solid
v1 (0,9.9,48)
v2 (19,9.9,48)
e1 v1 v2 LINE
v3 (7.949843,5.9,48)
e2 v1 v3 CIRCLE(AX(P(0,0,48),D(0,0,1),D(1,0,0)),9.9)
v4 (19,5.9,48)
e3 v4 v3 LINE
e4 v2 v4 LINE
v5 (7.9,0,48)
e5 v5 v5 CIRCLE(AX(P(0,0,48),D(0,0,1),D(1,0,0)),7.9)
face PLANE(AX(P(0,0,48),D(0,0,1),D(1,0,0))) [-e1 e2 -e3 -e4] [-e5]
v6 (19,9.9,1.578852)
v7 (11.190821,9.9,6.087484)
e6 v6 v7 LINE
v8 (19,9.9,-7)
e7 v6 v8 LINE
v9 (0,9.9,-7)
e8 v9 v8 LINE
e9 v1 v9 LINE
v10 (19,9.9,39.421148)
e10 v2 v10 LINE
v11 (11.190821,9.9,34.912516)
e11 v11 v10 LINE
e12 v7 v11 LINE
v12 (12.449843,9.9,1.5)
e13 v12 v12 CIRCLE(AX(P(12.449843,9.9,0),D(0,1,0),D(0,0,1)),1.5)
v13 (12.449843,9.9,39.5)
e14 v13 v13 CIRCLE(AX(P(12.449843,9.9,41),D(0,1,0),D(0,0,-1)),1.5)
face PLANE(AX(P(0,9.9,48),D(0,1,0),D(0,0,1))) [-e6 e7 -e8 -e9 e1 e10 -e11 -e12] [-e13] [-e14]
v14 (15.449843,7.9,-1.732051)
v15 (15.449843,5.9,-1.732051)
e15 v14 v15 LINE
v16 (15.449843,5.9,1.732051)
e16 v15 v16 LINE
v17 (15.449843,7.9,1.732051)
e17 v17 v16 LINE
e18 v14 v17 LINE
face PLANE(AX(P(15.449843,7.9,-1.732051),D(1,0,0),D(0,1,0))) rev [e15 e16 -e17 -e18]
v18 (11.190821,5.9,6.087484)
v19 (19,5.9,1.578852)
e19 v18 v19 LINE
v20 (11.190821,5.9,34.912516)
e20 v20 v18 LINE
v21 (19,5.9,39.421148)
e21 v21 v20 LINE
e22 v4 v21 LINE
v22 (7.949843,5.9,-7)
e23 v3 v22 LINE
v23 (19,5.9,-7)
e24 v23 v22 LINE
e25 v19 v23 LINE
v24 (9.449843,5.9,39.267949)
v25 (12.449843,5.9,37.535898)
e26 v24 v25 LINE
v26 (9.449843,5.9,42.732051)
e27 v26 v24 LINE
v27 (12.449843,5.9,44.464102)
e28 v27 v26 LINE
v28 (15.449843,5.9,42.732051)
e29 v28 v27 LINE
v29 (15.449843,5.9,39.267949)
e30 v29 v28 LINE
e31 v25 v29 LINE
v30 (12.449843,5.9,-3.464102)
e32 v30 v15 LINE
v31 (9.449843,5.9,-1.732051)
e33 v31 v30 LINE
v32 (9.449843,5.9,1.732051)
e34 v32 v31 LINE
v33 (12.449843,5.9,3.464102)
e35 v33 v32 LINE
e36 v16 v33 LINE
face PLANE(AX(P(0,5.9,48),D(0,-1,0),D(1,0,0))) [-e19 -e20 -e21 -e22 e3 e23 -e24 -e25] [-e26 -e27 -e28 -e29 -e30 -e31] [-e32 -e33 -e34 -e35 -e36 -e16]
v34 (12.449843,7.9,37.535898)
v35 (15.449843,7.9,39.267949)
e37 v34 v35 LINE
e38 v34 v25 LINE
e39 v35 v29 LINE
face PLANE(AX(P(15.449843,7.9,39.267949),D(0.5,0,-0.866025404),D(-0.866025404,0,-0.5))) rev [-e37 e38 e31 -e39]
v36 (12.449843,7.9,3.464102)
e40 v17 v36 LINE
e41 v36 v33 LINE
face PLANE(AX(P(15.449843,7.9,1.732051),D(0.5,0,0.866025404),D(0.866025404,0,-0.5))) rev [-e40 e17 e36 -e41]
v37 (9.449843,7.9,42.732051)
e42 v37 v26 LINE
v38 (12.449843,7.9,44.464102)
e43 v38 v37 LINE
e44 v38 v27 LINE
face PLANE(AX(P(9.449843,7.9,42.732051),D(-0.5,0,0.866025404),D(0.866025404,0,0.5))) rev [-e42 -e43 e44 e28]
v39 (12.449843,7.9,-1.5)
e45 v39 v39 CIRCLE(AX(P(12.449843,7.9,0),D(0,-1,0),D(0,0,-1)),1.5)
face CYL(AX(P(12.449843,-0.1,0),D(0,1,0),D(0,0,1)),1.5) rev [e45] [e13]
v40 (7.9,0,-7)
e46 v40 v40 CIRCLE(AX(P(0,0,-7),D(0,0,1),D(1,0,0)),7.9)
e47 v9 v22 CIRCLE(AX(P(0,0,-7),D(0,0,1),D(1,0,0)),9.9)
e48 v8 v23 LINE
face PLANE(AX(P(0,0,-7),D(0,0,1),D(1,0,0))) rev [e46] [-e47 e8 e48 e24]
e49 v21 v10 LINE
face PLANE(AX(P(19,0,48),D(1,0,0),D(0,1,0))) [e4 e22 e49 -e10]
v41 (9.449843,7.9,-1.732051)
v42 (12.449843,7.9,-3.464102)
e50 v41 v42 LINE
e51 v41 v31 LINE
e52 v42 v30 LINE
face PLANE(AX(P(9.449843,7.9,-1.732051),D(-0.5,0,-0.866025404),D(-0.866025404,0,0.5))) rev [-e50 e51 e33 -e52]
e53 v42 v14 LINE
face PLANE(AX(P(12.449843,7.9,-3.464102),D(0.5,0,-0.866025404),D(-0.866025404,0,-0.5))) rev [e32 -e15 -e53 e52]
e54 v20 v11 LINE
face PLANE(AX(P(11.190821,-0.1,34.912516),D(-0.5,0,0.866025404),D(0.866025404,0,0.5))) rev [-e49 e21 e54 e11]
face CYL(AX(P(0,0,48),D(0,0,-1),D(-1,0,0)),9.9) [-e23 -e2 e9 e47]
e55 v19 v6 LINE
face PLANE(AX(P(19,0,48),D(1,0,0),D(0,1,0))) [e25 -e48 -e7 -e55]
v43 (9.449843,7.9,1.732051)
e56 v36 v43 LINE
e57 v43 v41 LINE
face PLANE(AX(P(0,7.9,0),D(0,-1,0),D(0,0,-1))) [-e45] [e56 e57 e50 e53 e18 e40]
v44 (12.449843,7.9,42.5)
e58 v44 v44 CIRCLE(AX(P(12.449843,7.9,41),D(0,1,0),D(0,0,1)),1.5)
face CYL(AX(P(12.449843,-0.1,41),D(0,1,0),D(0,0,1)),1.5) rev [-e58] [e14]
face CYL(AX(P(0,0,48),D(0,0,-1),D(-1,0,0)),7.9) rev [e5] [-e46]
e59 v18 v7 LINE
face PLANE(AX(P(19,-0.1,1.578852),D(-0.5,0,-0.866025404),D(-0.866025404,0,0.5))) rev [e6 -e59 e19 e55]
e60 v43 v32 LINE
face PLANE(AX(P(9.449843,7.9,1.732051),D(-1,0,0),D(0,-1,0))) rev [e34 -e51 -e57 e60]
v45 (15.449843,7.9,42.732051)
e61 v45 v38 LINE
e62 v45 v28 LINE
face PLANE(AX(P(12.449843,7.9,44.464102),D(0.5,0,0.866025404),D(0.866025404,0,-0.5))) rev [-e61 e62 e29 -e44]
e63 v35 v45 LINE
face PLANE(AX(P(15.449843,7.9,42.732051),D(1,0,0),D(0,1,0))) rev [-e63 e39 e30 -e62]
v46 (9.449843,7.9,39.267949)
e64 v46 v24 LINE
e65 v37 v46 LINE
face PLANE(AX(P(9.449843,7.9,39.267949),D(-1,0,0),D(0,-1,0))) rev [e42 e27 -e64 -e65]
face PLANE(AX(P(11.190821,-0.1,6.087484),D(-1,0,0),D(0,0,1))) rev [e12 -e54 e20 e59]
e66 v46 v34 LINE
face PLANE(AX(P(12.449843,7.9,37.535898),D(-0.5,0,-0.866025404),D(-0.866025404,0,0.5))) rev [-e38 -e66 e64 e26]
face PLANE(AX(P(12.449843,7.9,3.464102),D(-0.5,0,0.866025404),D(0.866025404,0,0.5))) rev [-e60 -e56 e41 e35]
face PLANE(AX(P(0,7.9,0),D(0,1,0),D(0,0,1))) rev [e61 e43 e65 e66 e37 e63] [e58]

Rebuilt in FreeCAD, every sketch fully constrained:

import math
import FreeCAD as App
import Part
import Sketcher
Q = App.Units.Quantity


def add_polygon(sketch, points):
    """Adds a closed chain of lines whose ends are joined by coincident constraints."""
    first, n = sketch.GeometryCount, len(points)
    for a, b in zip(points, points[1:] + points[:1]):
        sketch.addGeometry(Part.LineSegment(App.Vector(*a, 0), App.Vector(*b, 0)), False)
    for i in range(n):
        sketch.addConstraint(Sketcher.Constraint("Coincident", first + i, 2, first + (i + 1) % n, 1))

doc = App.newDocument("Part")
body = doc.addObject("PartDesign::Body", "Body")

# Sketch on XY plane
sketch1 = body.newObject("Sketcher::SketchObject", "Sketch")
sketch1.AttachmentSupport = (doc.getObject("XY_Plane"), [""])
sketch1.MapMode = "FlatFace"
sketch1.addGeometry([
    Part.LineSegment(App.Vector(7.9, 5.9, 0), App.Vector(19, 5.9, 0)),  # 0
    Part.LineSegment(App.Vector(19, 5.9, 0), App.Vector(19, 9.9, 0)),  # 1
    Part.LineSegment(App.Vector(19, 9.9, 0), App.Vector(0, 9.9, 0)),  # 2
    Part.ArcOfCircle(Part.Circle(App.Vector(0, 0, 0), App.Vector(0, 0, 1), 9.9), math.radians(90), math.radians(397)),  # 3
    Part.Circle(App.Vector(0, 0, 0), App.Vector(0, 0, 1), 7.9),  # 4
], False)
sketch1.addConstraint([
    Sketcher.Constraint("Coincident", 0, 2, 1, 1),
    Sketcher.Constraint("Coincident", 1, 2, 2, 1),
    Sketcher.Constraint("Tangent", 2, 2, 3, 1),
    Sketcher.Constraint("Coincident", 3, 2, 0, 1),
    Sketcher.Constraint("Horizontal", 0),
    Sketcher.Constraint("Vertical", 1),
    Sketcher.Constraint("Horizontal", 2),
    Sketcher.Constraint("Coincident", 3, 3, -1, 1),
    Sketcher.Constraint("Coincident", 4, 3, -1, 1),
    Sketcher.Constraint("Diameter", 4, 15.8),
    Sketcher.Constraint("Radius", 3, 9.9),
    Sketcher.Constraint("DistanceX", 2, 2, 2, 1, 19.0),
    Sketcher.Constraint("DistanceY", 1, 1, 1, 2, 4.0),
])
pad1 = body.newObject("PartDesign::Pad", "Pad")
pad1.Profile = sketch1
pad1.Type = "TwoLengths"
pad1.Length = 48
pad1.Length2 = 7

# Sketch on XZ plane
sketch2 = body.newObject("Sketcher::SketchObject", "Sketch001")
sketch2.AttachmentSupport = (doc.getObject("XZ_Plane"), [""])
sketch2.MapMode = "FlatFace"
sketch2.AttachmentOffset = App.Placement(App.Vector(0, 0, -5.9), App.Rotation())
add_polygon(sketch2, [(15.4, -1.7), (15.4, 1.7), (12.4, 3.5), (9.4, 1.7), (9.4, -1.7), (12.4, -3.5)])  # lines 0-5
add_polygon(sketch2, [(15.4, 42.7), (12.4, 44.5), (9.4, 42.7), (9.4, 39.3), (12.4, 37.5), (15.4, 39.3)])  # lines 6-11
sketch2.addConstraint([
    Sketcher.Constraint("Vertical", 0),
    Sketcher.Constraint("Vertical", 3),
    Sketcher.Constraint("Vertical", 8),
    Sketcher.Constraint("Vertical", 11),
    Sketcher.Constraint("Symmetric", 1, 2, 4, 2, -1),
    Sketcher.Constraint("Parallel", 1, 4),
    Sketcher.Constraint("Parallel", 2, 5),
    Sketcher.Constraint("Parallel", 4, 6),
    Sketcher.Constraint("Parallel", 5, 7),
    Sketcher.Constraint("Parallel", 6, 9),
    Sketcher.Constraint("Parallel", 7, 10),
    Sketcher.Constraint("Horizontal", 0, 2, 2, 2),
    Sketcher.Constraint("Horizontal", 3, 2, 5, 2),
    Sketcher.Constraint("Horizontal", 8, 2, 10, 2),
    Sketcher.Constraint("Horizontal", 7, 2, 11, 2),
    Sketcher.Constraint("Vertical", 4, 2, 6, 2),
    Sketcher.Constraint("Vertical", 3, 2, 7, 2),
    Sketcher.Constraint("Equal", 3, 8),
    Sketcher.Constraint("Angle", 1, Q("150 deg")),
    Sketcher.Constraint("DistanceX", 1, 2, 0, 2, 3.0),
    Sketcher.Constraint("DistanceY", 1, 2, 6, 2, 41.0),
    Sketcher.Constraint("DistanceY", 0, 1, 0, 2, 3.464102),
    Sketcher.Constraint("DistanceX", -1, 1, 0, 2, 15.449843),
])
pocket1 = body.newObject("PartDesign::Pocket", "Pocket")
pocket1.Profile = sketch2
pocket1.Length = 2

# Sketch on XZ plane
sketch3 = body.newObject("Sketcher::SketchObject", "Sketch002")
sketch3.AttachmentSupport = (doc.getObject("XZ_Plane"), [""])
sketch3.MapMode = "FlatFace"
sketch3.AttachmentOffset = App.Placement(App.Vector(0, 0, -9.9), App.Rotation())
sketch3.addGeometry([
    Part.Circle(App.Vector(12.4, 0, 0), App.Vector(0, 0, 1), 1.5),
    Part.Circle(App.Vector(12.4, 41, 0), App.Vector(0, 0, 1), 1.5),
], False)
sketch3.addConstraint([
    Sketcher.Constraint("Equal", 0, 1),
    Sketcher.Constraint("PointOnObject", 0, 3, -1),
    Sketcher.Constraint("Vertical", 0, 3, 1, 3),
    Sketcher.Constraint("Diameter", 0, 3.0),
    Sketcher.Constraint("DistanceY", -1, 1, 1, 3, 41.0),
    Sketcher.Constraint("DistanceX", -1, 1, 0, 3, 12.449843),
])
pocket2 = body.newObject("PartDesign::Pocket", "Pocket001")
pocket2.Profile = sketch3
pocket2.Length = 10
pocket2.Reversed = True

# Sketch on XZ plane
sketch4 = body.newObject("Sketcher::SketchObject", "Sketch003")
sketch4.AttachmentSupport = (doc.getObject("XZ_Plane"), [""])
sketch4.MapMode = "FlatFace"
sketch4.AttachmentOffset = App.Placement(App.Vector(0, 0, -9.9), App.Rotation())
add_polygon(sketch4, [(19, 2), (11, 6), (11, 35), (19, 39)])  # lines 0-3
sketch4.addConstraint([
    Sketcher.Constraint("Vertical", 1),
    Sketcher.Constraint("Vertical", 3),
    Sketcher.Constraint("Equal", 0, 2),
    Sketcher.Constraint("Angle", 0, Q("150 deg")),
    Sketcher.Constraint("DistanceX", -1, 1, 2, 2, 19.0),
    Sketcher.Constraint("DistanceY", 1, 1, 1, 2, 28.825033),
    Sketcher.Constraint("DistanceY", 3, 2, 3, 1, 37.842296),
    Sketcher.Constraint("DistanceY", -1, 1, 2, 2, 39.421148),
])
pocket3 = body.newObject("PartDesign::Pocket", "Pocket002")
pocket3.Profile = sketch4
pocket3.Length = 10
pocket3.Reversed = True

doc.recompute()
